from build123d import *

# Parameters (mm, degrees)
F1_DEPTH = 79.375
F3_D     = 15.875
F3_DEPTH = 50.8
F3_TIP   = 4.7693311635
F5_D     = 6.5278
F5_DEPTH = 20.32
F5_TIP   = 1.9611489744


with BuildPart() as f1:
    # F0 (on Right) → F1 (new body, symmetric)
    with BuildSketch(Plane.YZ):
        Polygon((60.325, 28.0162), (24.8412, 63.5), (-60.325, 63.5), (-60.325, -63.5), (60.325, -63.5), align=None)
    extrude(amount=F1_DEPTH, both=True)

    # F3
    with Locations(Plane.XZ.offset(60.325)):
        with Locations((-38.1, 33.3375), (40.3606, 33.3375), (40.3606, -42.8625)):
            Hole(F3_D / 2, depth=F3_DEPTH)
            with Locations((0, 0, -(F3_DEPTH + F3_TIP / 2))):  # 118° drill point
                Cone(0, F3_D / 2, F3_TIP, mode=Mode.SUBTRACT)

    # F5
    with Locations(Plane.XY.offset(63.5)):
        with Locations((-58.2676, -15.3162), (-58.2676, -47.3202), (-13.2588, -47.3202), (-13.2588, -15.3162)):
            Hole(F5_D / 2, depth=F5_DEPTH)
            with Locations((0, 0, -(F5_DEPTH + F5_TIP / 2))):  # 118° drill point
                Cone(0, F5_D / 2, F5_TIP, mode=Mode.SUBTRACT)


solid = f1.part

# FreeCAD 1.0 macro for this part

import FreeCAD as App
import Part
import Sketcher
Q = App.Units.Quantity

doc = App.newDocument("Part")
body = doc.addObject("PartDesign::Body", "Body")

# Sketch on YZ plane
sketch1 = body.newObject("Sketcher::SketchObject", "Sketch")
sketch1.AttachmentSupport = (doc.getObject("YZ_Plane"), [""])
sketch1.MapMode = "FlatFace"
sketch1.addGeometry([
    Part.LineSegment(App.Vector(60, 28, 0), App.Vector(25, 64, 0)),  # 0
    Part.LineSegment(App.Vector(25, 64, 0), App.Vector(-60, 64, 0)),  # 1
    Part.LineSegment(App.Vector(-60, 64, 0), App.Vector(-60, -64, 0)),  # 2
    Part.LineSegment(App.Vector(-60, -64, 0), App.Vector(60, -64, 0)),  # 3
    Part.LineSegment(App.Vector(60, -64, 0), App.Vector(60, 28, 0)),  # 4
], False)
sketch1.addConstraint([
    Sketcher.Constraint("Coincident", 0, 2, 1, 1),
    Sketcher.Constraint("Coincident", 1, 2, 2, 1),
    Sketcher.Constraint("Coincident", 2, 2, 3, 1),
    Sketcher.Constraint("Coincident", 3, 2, 4, 1),
    Sketcher.Constraint("Coincident", 4, 2, 0, 1),
    Sketcher.Constraint("Horizontal", 1),
    Sketcher.Constraint("Vertical", 2),
    Sketcher.Constraint("Horizontal", 3),
    Sketcher.Constraint("Vertical", 4),
    Sketcher.Constraint("Symmetric", 1, 2, 3, 2, -1, 1),
    Sketcher.Constraint("DistanceY", 2, 2, 2, 1, Q("5 in")),
    Sketcher.Constraint("Angle", 0, Q("135 deg")),
    Sketcher.Constraint("DistanceX", 3, 1, 3, 2, Q("4.75 in")),
    Sketcher.Constraint("DistanceX", 1, 2, 1, 1, Q("3.353 in")),
])
pad1 = body.newObject("PartDesign::Pad", "Pad")
pad1.Profile = sketch1
pad1.Length = Q("6.25 in")
pad1.Midplane = True

# Sketch on XZ plane
sketch2 = body.newObject("Sketcher::SketchObject", "Sketch001")
sketch2.AttachmentSupport = (doc.getObject("XZ_Plane"), [""])
sketch2.MapMode = "FlatFace"
sketch2.AttachmentOffset = App.Placement(App.Vector(0, 0, 2.375 * 25.4), App.Rotation())
sketch2.addGeometry([
    Part.Circle(App.Vector(-38, 33, 0), App.Vector(0, 0, 1), 8),
    Part.Circle(App.Vector(40, 33, 0), App.Vector(0, 0, 1), 8),
    Part.Circle(App.Vector(40, -43, 0), App.Vector(0, 0, 1), 8),
], False)
sketch2.addConstraint([
    Sketcher.Constraint("Equal", 0, 1),
    Sketcher.Constraint("Equal", 1, 2),
    Sketcher.Constraint("Horizontal", 0, 3, 1, 3),
    Sketcher.Constraint("Vertical", 1, 3, 2, 3),
    Sketcher.Constraint("Diameter", 0, Q("0.625 in")),
    Sketcher.Constraint("DistanceY", 2, 3, 1, 3, Q("3 in")),
    Sketcher.Constraint("DistanceX", 0, 3, -1, 1, Q("1.5 in")),
    Sketcher.Constraint("DistanceY", -1, 1, 0, 3, Q("1.3125 in")),
    Sketcher.Constraint("DistanceX", -1, 1, 1, 3, Q("1.589 in")),
])
doc.recompute()
hole = body.newObject("PartDesign::Hole", "Hole")
hole.Profile = sketch2
hole.ThreadType = "None"
hole.Diameter = Q("0.625 in")
hole.DepthType = "Dimension"
hole.Depth = Q("2 in")
hole.DrillPoint = "Angled"
hole.DrillPointAngle = 118

# Sketch on XY plane
sketch3 = body.newObject("Sketcher::SketchObject", "Sketch002")
sketch3.AttachmentSupport = (doc.getObject("XY_Plane"), [""])
sketch3.MapMode = "FlatFace"
sketch3.AttachmentOffset = App.Placement(App.Vector(0, 0, 2.5 * 25.4), App.Rotation())
sketch3.addGeometry([
    Part.Circle(App.Vector(-58.3, -15.3, 0), App.Vector(0, 0, 1), 3.3),
    Part.Circle(App.Vector(-58.3, -47.3, 0), App.Vector(0, 0, 1), 3.3),
    Part.Circle(App.Vector(-13.3, -47.3, 0), App.Vector(0, 0, 1), 3.3),
    Part.Circle(App.Vector(-13.3, -15.3, 0), App.Vector(0, 0, 1), 3.3),
], False)
sketch3.addConstraint([
    Sketcher.Constraint("Equal", 0, 1),
    Sketcher.Constraint("Equal", 1, 2),
    Sketcher.Constraint("Equal", 2, 3),
    Sketcher.Constraint("Horizontal", 1, 3, 2, 3),
    Sketcher.Constraint("Horizontal", 0, 3, 3, 3),
    Sketcher.Constraint("Vertical", 0, 3, 1, 3),
    Sketcher.Constraint("Vertical", 2, 3, 3, 3),
    Sketcher.Constraint("Diameter", 0, Q("0.257 in")),
    Sketcher.Constraint("DistanceY", 1, 3, 0, 3, Q("1.26 in")),
    Sketcher.Constraint("DistanceX", 0, 3, -1, 1, Q("2.294 in")),
    Sketcher.Constraint("DistanceY", 0, 3, -1, 1, Q("0.603 in")),
    Sketcher.Constraint("DistanceX", 2, 3, -1, 1, Q("0.522 in")),
])
doc.recompute()
hole2 = body.newObject("PartDesign::Hole", "Hole001")
hole2.Profile = sketch3
hole2.ThreadType = "None"
hole2.Diameter = Q("0.257 in")
hole2.DepthType = "Dimension"
hole2.Depth = Q("0.8 in")
hole2.DrillPoint = "Angled"
hole2.DrillPointAngle = 118

doc.recompute()
